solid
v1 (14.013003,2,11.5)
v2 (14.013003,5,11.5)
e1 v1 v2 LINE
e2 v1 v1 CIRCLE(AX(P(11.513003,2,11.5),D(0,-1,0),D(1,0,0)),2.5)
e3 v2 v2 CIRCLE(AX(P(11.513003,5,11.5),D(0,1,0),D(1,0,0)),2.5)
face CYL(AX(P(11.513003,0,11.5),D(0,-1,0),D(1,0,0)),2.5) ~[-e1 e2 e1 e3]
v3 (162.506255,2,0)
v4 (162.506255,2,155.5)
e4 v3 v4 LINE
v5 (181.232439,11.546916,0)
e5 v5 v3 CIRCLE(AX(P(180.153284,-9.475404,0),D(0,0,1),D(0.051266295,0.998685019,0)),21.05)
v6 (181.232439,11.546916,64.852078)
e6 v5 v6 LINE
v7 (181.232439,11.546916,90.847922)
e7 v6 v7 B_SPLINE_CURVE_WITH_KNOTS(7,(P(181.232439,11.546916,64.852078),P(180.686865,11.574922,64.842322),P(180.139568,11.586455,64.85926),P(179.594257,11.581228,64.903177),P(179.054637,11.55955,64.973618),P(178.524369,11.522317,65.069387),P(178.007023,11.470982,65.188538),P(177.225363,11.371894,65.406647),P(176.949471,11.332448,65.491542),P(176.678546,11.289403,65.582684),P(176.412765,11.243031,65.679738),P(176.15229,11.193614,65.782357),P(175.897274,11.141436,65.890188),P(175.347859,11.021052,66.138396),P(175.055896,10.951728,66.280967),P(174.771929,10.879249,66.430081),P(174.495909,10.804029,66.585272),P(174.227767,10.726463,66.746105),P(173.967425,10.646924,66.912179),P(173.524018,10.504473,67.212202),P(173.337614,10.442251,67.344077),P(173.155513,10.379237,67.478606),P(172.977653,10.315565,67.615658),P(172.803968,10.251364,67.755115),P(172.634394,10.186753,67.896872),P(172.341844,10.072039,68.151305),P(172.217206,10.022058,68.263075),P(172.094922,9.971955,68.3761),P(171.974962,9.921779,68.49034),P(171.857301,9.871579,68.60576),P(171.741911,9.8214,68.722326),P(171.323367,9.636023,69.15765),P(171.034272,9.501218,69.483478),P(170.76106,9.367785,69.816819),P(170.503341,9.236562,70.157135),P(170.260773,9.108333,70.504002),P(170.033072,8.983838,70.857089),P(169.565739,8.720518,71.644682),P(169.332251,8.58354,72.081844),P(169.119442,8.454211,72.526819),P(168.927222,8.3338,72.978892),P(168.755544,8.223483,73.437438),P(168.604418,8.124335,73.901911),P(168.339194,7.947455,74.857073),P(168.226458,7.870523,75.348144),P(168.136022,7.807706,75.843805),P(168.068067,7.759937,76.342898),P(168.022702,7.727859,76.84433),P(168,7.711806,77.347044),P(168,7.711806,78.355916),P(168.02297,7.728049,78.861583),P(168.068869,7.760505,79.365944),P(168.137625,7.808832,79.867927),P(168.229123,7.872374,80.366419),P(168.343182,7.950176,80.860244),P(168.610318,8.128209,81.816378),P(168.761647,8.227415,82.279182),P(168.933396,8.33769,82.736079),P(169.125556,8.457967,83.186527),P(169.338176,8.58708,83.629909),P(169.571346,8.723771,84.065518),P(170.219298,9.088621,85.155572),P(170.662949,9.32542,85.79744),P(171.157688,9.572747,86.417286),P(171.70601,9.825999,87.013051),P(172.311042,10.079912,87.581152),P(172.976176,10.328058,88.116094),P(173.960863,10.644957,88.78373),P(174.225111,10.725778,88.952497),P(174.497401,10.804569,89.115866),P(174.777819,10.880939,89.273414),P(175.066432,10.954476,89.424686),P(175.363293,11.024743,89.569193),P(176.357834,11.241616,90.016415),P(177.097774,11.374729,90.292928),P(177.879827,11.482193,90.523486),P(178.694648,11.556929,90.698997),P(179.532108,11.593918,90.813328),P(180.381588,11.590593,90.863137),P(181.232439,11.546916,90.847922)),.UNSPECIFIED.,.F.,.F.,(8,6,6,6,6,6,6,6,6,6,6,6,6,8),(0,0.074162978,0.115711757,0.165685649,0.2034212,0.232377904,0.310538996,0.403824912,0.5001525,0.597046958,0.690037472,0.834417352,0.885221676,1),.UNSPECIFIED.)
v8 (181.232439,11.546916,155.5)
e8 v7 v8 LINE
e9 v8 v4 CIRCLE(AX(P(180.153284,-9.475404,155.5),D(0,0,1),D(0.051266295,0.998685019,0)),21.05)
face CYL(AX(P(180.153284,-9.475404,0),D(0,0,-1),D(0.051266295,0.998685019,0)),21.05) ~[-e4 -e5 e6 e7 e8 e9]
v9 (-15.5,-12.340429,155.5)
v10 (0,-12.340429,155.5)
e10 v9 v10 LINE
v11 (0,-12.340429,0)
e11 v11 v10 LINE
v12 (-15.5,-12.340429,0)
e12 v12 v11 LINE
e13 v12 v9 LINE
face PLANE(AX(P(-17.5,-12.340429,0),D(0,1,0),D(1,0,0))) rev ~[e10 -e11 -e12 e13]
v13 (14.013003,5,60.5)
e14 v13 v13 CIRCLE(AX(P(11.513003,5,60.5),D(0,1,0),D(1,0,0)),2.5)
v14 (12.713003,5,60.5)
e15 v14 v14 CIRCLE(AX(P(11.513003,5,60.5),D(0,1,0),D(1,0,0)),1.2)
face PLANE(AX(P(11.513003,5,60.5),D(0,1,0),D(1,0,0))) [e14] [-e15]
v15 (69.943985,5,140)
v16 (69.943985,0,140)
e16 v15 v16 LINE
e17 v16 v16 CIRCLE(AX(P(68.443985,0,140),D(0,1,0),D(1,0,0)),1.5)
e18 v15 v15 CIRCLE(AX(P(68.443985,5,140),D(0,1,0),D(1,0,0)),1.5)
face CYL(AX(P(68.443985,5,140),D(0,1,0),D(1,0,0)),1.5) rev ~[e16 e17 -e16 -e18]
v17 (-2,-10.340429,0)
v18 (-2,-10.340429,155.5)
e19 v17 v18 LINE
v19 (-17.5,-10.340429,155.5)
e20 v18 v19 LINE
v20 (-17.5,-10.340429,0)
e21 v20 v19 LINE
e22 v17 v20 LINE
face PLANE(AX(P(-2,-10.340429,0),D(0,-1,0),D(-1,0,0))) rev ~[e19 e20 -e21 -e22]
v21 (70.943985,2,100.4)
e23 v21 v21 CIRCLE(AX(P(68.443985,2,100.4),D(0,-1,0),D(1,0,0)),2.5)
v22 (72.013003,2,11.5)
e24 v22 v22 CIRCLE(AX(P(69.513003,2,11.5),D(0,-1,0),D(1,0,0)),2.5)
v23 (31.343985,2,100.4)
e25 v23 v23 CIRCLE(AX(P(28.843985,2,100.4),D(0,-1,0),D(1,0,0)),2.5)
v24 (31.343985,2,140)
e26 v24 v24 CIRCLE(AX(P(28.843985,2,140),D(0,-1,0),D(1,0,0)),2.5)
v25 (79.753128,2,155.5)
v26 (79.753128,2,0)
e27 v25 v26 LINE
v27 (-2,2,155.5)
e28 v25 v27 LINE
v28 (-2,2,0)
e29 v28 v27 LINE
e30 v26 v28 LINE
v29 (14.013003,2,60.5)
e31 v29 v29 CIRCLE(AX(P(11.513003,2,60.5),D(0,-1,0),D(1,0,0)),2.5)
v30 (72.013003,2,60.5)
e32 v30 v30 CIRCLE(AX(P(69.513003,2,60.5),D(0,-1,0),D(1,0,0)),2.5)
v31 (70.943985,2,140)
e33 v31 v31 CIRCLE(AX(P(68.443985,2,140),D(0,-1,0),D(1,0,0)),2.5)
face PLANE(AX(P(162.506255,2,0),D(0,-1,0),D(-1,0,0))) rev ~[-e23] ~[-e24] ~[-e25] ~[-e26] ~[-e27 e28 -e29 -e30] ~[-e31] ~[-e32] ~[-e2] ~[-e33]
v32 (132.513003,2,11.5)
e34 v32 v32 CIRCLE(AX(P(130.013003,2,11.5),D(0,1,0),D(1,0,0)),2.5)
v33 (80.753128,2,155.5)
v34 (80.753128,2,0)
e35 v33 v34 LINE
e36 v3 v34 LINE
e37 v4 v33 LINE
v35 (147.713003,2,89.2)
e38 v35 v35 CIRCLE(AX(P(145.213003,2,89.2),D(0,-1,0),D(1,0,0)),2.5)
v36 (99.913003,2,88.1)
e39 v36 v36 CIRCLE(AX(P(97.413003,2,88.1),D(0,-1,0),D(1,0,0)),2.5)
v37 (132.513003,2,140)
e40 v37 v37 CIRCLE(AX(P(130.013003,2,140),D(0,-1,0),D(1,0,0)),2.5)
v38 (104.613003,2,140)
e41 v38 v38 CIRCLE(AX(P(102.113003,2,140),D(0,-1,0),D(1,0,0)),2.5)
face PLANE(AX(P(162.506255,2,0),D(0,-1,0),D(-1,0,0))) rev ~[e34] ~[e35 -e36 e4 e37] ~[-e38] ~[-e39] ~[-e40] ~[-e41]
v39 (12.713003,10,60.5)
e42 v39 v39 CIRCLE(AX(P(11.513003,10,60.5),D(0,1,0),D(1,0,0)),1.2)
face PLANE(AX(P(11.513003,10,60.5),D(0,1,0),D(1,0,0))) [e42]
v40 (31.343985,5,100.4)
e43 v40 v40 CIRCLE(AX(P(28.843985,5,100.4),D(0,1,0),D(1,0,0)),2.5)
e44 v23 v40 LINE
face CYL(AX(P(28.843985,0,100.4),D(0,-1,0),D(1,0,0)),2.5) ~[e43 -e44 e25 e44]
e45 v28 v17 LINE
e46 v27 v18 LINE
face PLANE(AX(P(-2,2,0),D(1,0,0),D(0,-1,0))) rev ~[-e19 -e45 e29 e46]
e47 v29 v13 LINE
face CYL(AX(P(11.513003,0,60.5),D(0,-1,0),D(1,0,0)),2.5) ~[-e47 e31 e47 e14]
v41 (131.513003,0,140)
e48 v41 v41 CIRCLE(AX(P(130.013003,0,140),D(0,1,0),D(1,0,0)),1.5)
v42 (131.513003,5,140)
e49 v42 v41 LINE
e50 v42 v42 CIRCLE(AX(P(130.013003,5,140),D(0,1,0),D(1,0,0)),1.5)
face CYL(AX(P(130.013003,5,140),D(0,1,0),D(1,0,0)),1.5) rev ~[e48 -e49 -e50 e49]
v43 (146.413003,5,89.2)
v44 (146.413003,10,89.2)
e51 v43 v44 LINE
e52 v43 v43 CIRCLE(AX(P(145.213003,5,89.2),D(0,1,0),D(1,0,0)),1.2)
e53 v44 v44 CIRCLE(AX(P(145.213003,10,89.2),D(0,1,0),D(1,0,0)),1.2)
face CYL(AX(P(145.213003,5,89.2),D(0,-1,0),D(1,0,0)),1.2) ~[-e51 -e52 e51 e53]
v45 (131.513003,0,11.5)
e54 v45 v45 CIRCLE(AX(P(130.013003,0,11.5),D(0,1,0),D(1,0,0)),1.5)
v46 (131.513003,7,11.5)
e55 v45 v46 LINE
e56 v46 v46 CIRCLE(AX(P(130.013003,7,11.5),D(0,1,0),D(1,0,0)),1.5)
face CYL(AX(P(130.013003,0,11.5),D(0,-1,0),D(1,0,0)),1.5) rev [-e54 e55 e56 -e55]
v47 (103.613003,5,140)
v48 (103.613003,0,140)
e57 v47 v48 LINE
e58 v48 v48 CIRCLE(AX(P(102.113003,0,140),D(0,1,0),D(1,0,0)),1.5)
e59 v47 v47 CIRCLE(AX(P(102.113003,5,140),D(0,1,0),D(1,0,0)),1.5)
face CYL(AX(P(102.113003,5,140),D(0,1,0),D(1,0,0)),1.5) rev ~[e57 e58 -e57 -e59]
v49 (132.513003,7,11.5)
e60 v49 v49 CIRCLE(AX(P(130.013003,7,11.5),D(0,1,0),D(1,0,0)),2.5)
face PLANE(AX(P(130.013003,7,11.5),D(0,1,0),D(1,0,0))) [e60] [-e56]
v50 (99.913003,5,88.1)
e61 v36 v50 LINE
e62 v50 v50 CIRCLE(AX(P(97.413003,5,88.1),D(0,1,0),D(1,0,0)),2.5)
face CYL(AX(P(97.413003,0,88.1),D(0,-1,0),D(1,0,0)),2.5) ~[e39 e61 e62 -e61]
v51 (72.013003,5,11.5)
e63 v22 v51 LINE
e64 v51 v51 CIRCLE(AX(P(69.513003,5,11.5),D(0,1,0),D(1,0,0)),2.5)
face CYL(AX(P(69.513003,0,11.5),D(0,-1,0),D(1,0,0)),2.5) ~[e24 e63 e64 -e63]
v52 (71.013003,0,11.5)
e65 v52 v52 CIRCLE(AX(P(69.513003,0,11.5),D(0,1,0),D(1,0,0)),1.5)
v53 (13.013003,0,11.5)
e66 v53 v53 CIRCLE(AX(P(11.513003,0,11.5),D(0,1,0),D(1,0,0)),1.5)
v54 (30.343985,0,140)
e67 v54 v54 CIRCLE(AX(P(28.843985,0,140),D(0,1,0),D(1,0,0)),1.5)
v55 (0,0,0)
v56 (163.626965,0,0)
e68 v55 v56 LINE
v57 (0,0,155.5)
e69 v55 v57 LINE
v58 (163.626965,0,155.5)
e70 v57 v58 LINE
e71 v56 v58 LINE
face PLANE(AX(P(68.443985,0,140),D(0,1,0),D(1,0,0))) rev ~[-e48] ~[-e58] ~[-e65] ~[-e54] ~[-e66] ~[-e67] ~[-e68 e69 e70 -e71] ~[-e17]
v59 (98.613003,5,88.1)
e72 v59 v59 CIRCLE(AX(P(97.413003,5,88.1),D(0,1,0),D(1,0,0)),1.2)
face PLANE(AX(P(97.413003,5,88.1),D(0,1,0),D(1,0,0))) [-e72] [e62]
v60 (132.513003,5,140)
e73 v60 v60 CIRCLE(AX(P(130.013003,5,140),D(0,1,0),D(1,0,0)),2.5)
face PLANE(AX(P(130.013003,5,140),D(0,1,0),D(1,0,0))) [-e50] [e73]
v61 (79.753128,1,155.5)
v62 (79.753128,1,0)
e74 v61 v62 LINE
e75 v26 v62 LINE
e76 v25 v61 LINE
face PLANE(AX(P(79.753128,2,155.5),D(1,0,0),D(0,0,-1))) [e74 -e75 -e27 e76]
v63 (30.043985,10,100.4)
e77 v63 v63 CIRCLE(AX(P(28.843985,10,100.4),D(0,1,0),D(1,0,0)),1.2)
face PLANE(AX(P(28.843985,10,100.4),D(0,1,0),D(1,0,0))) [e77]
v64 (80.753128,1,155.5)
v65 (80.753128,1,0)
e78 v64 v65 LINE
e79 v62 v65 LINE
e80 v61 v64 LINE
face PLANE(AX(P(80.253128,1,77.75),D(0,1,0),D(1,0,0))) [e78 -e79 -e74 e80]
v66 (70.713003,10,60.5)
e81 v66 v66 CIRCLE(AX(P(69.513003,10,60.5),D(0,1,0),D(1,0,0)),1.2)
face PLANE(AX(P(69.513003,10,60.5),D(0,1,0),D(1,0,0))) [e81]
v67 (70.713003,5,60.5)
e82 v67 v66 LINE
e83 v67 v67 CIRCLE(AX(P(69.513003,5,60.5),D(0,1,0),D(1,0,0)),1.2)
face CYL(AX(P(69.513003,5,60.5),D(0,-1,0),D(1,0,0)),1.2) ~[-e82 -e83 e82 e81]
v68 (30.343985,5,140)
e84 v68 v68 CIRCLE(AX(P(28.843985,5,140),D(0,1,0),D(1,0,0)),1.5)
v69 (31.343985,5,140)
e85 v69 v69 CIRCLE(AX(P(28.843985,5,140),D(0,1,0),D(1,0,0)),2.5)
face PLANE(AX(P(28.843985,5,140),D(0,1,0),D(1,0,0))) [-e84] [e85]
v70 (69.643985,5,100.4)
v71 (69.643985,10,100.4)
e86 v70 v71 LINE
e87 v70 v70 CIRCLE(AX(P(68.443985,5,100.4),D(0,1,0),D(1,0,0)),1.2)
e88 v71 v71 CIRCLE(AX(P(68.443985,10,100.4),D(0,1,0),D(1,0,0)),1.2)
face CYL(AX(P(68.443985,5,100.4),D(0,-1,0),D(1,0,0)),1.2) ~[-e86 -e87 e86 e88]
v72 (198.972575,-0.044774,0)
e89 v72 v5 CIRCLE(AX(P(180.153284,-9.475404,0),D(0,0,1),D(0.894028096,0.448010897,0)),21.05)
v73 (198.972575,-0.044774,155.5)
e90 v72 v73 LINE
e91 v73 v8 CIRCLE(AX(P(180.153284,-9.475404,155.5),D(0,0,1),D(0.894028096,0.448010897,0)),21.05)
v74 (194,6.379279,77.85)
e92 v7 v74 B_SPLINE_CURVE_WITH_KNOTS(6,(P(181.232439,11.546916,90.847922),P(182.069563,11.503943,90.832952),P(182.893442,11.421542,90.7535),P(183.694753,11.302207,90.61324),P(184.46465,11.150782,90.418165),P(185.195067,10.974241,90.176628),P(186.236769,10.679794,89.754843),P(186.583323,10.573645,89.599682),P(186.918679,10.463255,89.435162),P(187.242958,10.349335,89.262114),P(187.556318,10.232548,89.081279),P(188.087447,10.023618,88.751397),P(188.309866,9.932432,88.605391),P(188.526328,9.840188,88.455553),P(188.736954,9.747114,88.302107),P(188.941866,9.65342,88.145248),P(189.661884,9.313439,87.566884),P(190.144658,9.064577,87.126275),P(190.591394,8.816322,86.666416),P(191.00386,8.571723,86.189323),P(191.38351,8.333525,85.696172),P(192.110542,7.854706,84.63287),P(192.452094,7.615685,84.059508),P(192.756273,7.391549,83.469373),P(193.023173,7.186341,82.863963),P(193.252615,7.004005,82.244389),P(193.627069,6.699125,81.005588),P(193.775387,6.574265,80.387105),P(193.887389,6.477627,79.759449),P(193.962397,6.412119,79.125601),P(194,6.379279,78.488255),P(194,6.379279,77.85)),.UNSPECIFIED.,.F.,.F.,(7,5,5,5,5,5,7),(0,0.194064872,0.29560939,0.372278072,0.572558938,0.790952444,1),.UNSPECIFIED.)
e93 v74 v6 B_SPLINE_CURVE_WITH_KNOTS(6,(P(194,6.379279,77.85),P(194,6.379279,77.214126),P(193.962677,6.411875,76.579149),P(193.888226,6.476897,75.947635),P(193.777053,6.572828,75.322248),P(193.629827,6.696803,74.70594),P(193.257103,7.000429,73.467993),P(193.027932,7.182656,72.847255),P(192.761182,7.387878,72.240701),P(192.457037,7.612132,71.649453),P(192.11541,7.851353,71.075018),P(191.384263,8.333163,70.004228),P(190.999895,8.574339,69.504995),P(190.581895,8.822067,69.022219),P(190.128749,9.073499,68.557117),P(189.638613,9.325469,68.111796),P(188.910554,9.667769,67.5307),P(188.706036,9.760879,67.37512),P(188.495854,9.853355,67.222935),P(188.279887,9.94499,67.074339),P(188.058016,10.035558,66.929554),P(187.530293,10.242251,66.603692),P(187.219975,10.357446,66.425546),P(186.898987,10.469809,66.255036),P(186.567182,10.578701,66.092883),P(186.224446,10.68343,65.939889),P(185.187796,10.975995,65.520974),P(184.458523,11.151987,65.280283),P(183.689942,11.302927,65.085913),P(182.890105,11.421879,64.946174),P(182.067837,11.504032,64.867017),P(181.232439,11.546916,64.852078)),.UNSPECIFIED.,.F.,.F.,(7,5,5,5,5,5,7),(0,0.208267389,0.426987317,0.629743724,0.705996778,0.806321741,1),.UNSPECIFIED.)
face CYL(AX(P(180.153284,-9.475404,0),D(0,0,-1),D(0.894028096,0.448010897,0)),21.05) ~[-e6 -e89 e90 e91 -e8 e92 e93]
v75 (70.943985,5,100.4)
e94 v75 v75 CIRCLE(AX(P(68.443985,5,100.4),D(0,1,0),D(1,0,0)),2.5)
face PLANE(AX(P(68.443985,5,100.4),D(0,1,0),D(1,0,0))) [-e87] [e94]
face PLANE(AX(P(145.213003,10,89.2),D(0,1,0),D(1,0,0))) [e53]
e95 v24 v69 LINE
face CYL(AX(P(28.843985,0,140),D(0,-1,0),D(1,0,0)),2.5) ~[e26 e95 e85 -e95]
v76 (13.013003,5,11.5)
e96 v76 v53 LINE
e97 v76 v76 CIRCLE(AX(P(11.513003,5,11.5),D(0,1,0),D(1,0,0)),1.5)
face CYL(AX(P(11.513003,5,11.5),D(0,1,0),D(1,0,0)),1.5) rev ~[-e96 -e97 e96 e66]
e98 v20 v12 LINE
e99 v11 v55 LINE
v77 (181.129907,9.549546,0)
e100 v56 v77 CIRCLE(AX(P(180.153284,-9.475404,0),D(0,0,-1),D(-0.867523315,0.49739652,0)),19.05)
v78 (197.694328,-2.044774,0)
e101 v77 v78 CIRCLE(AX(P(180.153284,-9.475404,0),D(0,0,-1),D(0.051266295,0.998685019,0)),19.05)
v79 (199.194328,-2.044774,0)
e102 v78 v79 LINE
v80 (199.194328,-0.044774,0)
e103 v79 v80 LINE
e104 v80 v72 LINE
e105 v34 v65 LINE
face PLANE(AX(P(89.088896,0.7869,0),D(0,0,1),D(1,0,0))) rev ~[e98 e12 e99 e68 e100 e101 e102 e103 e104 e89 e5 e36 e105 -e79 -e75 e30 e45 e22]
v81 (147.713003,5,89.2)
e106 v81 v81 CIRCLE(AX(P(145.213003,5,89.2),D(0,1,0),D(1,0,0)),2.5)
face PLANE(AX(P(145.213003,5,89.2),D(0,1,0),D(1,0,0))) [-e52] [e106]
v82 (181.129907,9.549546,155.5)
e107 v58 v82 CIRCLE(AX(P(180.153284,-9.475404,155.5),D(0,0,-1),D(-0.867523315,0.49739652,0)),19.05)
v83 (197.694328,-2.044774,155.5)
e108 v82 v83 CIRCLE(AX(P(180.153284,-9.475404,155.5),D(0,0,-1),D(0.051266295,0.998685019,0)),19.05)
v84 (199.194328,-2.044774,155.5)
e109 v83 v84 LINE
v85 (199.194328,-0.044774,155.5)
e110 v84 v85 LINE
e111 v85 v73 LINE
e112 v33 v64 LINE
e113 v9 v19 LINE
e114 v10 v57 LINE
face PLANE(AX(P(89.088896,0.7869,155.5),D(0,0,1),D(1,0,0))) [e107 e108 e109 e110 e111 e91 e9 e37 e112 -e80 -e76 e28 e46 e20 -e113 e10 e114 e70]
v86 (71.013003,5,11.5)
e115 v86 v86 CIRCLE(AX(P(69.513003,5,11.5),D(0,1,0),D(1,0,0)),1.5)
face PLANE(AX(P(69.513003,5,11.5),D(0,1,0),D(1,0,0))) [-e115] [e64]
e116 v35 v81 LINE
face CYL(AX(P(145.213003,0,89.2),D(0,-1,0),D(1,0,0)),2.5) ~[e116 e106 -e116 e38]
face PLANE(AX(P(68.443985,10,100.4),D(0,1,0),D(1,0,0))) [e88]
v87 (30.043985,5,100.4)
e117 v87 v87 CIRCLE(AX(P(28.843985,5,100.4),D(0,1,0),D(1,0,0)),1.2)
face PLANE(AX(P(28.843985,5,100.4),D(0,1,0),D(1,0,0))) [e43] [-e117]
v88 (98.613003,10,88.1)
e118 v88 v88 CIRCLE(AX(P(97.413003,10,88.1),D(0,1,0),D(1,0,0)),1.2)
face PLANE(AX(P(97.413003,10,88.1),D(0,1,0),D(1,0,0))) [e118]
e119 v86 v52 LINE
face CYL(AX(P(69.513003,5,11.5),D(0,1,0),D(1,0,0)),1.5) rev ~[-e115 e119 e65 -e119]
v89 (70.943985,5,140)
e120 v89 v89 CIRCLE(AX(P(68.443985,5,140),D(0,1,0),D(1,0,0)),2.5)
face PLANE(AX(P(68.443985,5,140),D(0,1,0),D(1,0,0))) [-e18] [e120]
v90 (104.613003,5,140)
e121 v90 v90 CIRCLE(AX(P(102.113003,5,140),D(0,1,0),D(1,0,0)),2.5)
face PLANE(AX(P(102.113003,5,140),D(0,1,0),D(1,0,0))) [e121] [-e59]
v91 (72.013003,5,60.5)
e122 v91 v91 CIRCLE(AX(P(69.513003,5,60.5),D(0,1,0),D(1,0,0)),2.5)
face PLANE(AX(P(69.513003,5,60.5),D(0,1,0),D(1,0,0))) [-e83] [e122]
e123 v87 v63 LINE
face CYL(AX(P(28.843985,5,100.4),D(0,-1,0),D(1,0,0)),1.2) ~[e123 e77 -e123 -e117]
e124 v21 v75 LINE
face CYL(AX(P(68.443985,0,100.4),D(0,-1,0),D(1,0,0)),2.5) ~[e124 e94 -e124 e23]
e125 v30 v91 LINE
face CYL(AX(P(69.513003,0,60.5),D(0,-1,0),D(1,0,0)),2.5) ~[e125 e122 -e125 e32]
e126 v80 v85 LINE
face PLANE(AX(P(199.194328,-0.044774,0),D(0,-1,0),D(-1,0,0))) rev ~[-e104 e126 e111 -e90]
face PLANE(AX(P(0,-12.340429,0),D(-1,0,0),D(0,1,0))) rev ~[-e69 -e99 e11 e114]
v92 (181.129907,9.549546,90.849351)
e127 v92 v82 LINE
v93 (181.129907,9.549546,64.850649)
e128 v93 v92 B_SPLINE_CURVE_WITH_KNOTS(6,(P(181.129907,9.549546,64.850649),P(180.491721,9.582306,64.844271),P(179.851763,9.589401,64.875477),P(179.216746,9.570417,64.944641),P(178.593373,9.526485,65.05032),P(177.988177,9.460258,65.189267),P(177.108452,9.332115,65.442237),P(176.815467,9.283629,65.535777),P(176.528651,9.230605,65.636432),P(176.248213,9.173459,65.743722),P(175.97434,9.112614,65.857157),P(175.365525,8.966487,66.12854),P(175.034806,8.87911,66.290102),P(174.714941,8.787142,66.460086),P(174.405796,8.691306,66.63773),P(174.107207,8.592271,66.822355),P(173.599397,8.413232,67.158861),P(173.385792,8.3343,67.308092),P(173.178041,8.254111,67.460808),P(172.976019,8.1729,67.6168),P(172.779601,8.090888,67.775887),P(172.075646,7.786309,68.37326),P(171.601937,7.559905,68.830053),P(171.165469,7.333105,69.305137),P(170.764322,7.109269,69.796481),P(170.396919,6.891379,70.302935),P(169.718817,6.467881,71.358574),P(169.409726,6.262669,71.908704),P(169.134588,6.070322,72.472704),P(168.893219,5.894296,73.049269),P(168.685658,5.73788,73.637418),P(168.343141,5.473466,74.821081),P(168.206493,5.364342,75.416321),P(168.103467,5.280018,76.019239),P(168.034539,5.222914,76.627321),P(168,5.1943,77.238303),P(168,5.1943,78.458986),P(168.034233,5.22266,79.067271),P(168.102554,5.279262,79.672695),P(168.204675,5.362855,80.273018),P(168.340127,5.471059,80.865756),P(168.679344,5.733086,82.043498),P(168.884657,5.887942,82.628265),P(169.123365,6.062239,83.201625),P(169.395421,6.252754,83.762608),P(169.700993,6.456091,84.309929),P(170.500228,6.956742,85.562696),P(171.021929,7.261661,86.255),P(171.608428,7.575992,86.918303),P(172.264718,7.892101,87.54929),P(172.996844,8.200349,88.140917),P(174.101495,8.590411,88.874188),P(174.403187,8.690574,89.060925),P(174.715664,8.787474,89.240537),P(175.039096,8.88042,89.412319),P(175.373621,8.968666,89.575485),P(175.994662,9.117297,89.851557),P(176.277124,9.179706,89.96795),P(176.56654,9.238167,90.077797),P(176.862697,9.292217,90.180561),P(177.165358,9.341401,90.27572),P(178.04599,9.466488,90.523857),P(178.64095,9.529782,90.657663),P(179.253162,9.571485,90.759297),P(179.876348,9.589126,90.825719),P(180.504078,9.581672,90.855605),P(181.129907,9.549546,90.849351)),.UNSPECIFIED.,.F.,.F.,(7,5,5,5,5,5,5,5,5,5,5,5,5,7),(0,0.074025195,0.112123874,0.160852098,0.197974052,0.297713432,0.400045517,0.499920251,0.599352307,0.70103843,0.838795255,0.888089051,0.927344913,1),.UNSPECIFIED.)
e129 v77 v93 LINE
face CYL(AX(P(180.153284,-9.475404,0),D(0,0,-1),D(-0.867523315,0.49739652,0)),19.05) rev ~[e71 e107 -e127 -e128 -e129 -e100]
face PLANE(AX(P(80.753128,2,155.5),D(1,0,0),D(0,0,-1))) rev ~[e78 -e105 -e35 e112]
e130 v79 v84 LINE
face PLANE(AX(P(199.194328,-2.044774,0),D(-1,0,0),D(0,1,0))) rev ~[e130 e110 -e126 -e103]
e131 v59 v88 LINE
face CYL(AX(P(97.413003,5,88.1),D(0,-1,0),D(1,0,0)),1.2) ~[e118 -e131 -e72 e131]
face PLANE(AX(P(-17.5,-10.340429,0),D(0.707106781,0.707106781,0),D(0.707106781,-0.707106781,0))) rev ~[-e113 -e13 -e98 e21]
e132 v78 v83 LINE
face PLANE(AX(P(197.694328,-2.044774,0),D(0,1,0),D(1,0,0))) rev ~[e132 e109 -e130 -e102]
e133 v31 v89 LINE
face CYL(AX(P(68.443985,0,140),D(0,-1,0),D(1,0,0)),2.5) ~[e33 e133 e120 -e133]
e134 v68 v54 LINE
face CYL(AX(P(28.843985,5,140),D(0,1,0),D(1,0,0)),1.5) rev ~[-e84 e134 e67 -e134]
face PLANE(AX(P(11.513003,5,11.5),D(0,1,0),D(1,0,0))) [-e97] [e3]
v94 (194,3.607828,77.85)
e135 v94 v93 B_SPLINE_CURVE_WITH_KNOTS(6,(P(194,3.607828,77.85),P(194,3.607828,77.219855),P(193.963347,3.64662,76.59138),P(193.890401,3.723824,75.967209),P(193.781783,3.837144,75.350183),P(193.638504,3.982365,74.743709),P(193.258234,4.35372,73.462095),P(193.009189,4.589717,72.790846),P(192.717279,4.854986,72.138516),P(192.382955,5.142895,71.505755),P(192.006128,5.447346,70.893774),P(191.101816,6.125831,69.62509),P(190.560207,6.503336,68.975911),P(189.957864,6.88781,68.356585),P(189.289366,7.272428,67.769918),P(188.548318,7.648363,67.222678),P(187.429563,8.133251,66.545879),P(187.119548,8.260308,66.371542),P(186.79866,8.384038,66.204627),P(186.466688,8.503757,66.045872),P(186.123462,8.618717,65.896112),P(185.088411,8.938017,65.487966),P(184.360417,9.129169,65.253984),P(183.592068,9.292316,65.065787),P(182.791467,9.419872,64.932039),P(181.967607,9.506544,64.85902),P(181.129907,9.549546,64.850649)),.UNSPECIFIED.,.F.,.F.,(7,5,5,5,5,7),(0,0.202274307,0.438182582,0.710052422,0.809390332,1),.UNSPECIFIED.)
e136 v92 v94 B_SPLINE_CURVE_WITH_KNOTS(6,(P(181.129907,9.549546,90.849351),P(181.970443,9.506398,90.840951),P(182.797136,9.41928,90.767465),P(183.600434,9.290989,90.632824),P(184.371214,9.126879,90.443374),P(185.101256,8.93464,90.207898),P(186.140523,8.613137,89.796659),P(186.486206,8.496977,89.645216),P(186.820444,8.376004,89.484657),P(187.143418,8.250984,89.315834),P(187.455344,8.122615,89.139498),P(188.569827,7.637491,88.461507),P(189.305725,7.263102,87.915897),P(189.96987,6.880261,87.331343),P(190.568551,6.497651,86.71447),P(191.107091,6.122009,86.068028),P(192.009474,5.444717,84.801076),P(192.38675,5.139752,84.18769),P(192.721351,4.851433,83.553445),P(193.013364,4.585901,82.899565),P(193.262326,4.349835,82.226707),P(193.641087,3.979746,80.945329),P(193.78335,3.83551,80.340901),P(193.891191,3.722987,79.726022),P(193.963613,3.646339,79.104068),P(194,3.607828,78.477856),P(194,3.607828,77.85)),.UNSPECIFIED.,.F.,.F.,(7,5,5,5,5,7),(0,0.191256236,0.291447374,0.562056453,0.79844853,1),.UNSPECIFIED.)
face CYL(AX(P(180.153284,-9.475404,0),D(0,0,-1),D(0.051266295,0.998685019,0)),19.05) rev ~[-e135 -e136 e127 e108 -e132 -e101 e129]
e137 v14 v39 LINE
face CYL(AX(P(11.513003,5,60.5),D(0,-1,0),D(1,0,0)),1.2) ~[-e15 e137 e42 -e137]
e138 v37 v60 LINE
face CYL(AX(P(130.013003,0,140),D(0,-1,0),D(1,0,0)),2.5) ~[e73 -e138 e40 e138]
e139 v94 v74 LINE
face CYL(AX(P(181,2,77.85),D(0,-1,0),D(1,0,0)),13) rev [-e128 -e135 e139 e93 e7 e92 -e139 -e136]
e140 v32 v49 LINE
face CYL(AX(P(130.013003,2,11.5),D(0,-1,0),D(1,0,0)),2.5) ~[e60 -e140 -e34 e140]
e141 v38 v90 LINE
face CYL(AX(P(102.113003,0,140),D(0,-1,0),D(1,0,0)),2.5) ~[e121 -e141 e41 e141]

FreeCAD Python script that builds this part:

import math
import FreeCAD as App
import Part
import Sketcher

V = App.Vector


def add_polygon(sketch, points):
    """Adds a closed chain of lines whose ends are joined by coincident constraints."""
    first, n = sketch.GeometryCount, len(points)
    for a, b in zip(points, points[1:] + points[:1]):
        sketch.addGeometry(Part.LineSegment(App.Vector(*a, 0), App.Vector(*b, 0)), False)
    for i in range(n):
        sketch.addConstraint(Sketcher.Constraint("Coincident", first + i, 2, first + (i + 1) % n, 1))

doc = App.newDocument("Part")
params = doc.addObject("Spreadsheet::Sheet", "Params")
for row, (alias, value) in enumerate([
    ("sketch1_height", "2 mm"),
    ("sketch1_radius", "19.05 mm"),
    ("sketch1_radius2", "21.05 mm"),
    ("sketch1_width", "17.5 mm"),
    ("sketch1_width2", "1.5 mm"),
    ("pad1_length", "155.5 mm"),
    ("sketch2_diameter", "5 mm"),
    ("pad2_length", "5 mm"),
    ("sketch3_diameter", "3 mm"),
    ("pocket1_length", "8 mm"),
    ("sketch4_diameter", "3 mm"),
    ("pocket2_length", "8 mm"),
    ("sketch5_diameter", "5 mm"),
    ("pad3_length", "5 mm"),
    ("sketch6_diameter", "3 mm"),
    ("pocket3_length", "8 mm"),
    ("sketch7_diameter", "3 mm"),
    ("pocket4_length", "8 mm"),
    ("sketch8_diameter", "5 mm"),
    ("pad4_length", "5 mm"),
    ("sketch9_diameter", "3 mm"),
    ("pocket5_length", "8 mm"),
    ("sketch10_diameter", "3 mm"),
    ("pocket6_length", "8 mm"),
    ("sketch11_diameter", "2.4 mm"),
    ("pad5_length", "5 mm"),
    ("sketch12_diameter", "2.4 mm"),
    ("pad6_length", "5 mm"),
    ("sketch13_diameter", "2.4 mm"),
    ("pad7_length", "5 mm"),
    ("sketch14_diameter", "2.4 mm"),
    ("pad8_length", "5 mm"),
    ("sketch15_diameter", "2.4 mm"),
    ("pad9_length", "5 mm"),
    ("sketch16_diameter", "2.4 mm"),
    ("pad10_length", "5 mm"),
    ("sketch17_width", "2 mm"),
    ("sketch18_diameter", "26 mm"),
    ("pocket8_length", "13 mm"),
    ("sketch19_width", "1 mm"),
    ("sketch19_height", "155.5 mm"),
    ("pocket9_length", "1 mm"),
    ("sketch20_diameter", "5 mm"),
    ("sketch20_diameter2", "3 mm"),
    ("pad11_length", "5 mm"),
    ("sketch21_diameter", "3 mm"),
    ("pocket10_length", "2 mm"),
], start=1):
    params.set(f"A{row}", alias)
    params.set(f"B{row}", "=" + value)
    params.setAlias(f"B{row}", alias)

body = doc.addObject("PartDesign::Body", "Body")

# Sketch on XY plane
sketch1 = doc.addObject("Sketcher::SketchObject", "Sketch")
body.addObject(sketch1)
sketch1.AttachmentSupport = (doc.XY_Plane, [""])
sketch1.MapMode = "FlatFace"
sketch1.addGeometry([
    Part.LineSegment(V(-17.5, -12.34, 0), V(0, -12.34, 0)),  # 0
    Part.LineSegment(V(0, -12.34, 0), V(0, 0, 0)),  # 1
    Part.LineSegment(V(0, 0, 0), V(163.63, 0, 0)),  # 2
    Part.ArcOfCircle(Part.Circle(V(180.15, -9.48, 0), V(0, 0, 1), 19.05), math.radians(87), math.radians(150)),  # 3
    Part.ArcOfCircle(Part.Circle(V(180.15, -9.48, 0), V(0, 0, 1), 19.05), math.radians(23), math.radians(87)),  # 4
    Part.LineSegment(V(197.69, -2.04, 0), V(199.19, -2.04, 0)),  # 5
    Part.LineSegment(V(199.19, -2.04, 0), V(199.19, -0.04, 0)),  # 6
    Part.LineSegment(V(199.19, -0.04, 0), V(198.97, -0.04, 0)),  # 7
    Part.ArcOfCircle(Part.Circle(V(180.15, -9.48, 0), V(0, 0, 1), 21.05), math.radians(27), math.radians(87)),  # 8
    Part.ArcOfCircle(Part.Circle(V(180.15, -9.48, 0), V(0, 0, 1), 21.05), math.radians(87), math.radians(147)),  # 9
    Part.LineSegment(V(162.51, 2, 0), V(-2, 2, 0)),  # 10
    Part.LineSegment(V(-2, 2, 0), V(-2, -10.34, 0)),  # 11
    Part.LineSegment(V(-2, -10.34, 0), V(-17.5, -10.34, 0)),  # 12
    Part.LineSegment(V(-17.5, -10.34, 0), V(-17.5, -12.34, 0)),  # 13
], False)
sketch1.addConstraint([
    Sketcher.Constraint("Coincident", 0, 2, 1, 1),
    Sketcher.Constraint("Coincident", 1, 2, 2, 1),
    Sketcher.Constraint("Coincident", 2, 2, 3, 2),
    Sketcher.Constraint("Tangent", 3, 1, 4, 2),
    Sketcher.Constraint("Coincident", 4, 1, 5, 1),
    Sketcher.Constraint("Coincident", 5, 2, 6, 1),
    Sketcher.Constraint("Coincident", 6, 2, 7, 1),
    Sketcher.Constraint("Coincident", 7, 2, 8, 1),
    Sketcher.Constraint("Tangent", 8, 2, 9, 1),
    Sketcher.Constraint("Coincident", 9, 2, 10, 1),
    Sketcher.Constraint("Coincident", 10, 2, 11, 1),
    Sketcher.Constraint("Coincident", 11, 2, 12, 1),
    Sketcher.Constraint("Coincident", 12, 2, 13, 1),
    Sketcher.Constraint("Coincident", 13, 2, 0, 1),
    Sketcher.Constraint("Horizontal", 0),
    Sketcher.Constraint("Vertical", 1),
    Sketcher.Constraint("Horizontal", 2),
    Sketcher.Constraint("Horizontal", 5),
    Sketcher.Constraint("Vertical", 6),
    Sketcher.Constraint("Horizontal", 7),
    Sketcher.Constraint("Horizontal", 10),
    Sketcher.Constraint("Vertical", 11),
    Sketcher.Constraint("Horizontal", 12),
    Sketcher.Constraint("Vertical", 13),
    Sketcher.Constraint("Coincident", 1, 2, -1, 1),
    Sketcher.Constraint("Coincident", 8, 3, 3, 3),
    Sketcher.Constraint("Equal", 3, 4),
    Sketcher.Constraint("Equal", 8, 9),
    Sketcher.Constraint("Equal", 1, 11),
    Sketcher.Constraint("Equal", 6, 13),
    Sketcher.Constraint("DistanceY", 6, 1, 6, 2, 2.0),
    Sketcher.Constraint("Radius", 3, 19.05),
    Sketcher.Constraint("Radius", 8, 21.05),
    Sketcher.Constraint("DistanceX", 0, 1, 0, 2, 17.5),
    Sketcher.Constraint("DistanceX", 5, 1, 5, 2, 1.5),
    Sketcher.Constraint("DistanceX", 12, 2, 12, 1, 15.5),
    Sketcher.Constraint("DistanceY", 1, 1, 1, 2, 12.340429),
    Sketcher.Constraint("DistanceX", 2, 1, 2, 2, 163.626965),
    Sketcher.Constraint("DistanceX", 7, 2, 7, 1, 0.221753),
    Sketcher.Constraint("DistanceX", 10, 2, 10, 1, 164.506255),
    Sketcher.Constraint("DistanceX", -1, 1, 8, 2, 181.232439),
    Sketcher.Constraint("DistanceY", 8, 3, 3, 1, 19.02495),
])
sketch1.setExpression("Constraints[30]", "Params.sketch1_height")
sketch1.setExpression("Constraints[31]", "Params.sketch1_radius")
sketch1.setExpression("Constraints[32]", "Params.sketch1_radius2")
sketch1.setExpression("Constraints[33]", "Params.sketch1_width")
sketch1.setExpression("Constraints[34]", "Params.sketch1_width2")
pad1 = doc.addObject("PartDesign::Pad", "Pad")
body.addObject(pad1)
pad1.Profile = sketch1
pad1.setExpression("Length", "Params.pad1_length")

# Sketch on XZ plane
sketch2 = doc.addObject("Sketcher::SketchObject", "Sketch001")
body.addObject(sketch2)
sketch2.AttachmentSupport = (doc.XZ_Plane, [""])
sketch2.MapMode = "FlatFace"
sketch2.addGeometry([
    Part.Circle(V(11.5, 11.5, 0), V(0, 0, 1), 2.5),
    Part.Circle(V(69.5, 11.5, 0), V(0, 0, 1), 2.5),
    Part.Circle(V(11.5, 60.5, 0), V(0, 0, 1), 2.5),
    Part.Circle(V(69.5, 60.5, 0), V(0, 0, 1), 2.5),
], False)
sketch2.addConstraint([
    Sketcher.Constraint("Equal", 0, 1),
    Sketcher.Constraint("Equal", 1, 2),
    Sketcher.Constraint("Equal", 2, 3),
    Sketcher.Constraint("Horizontal", 0, 3, 1, 3),
    Sketcher.Constraint("Horizontal", 2, 3, 3, 3),
    Sketcher.Constraint("Vertical", 0, 3, 2, 3),
    Sketcher.Constraint("Vertical", 1, 3, 3, 3),
    Sketcher.Constraint("Diameter", 0, 5.0),
    Sketcher.Constraint("DistanceX", 0, 3, 1, 3, 58.0),
    Sketcher.Constraint("DistanceY", 0, 3, 2, 3, 49.0),
    Sketcher.Constraint("DistanceY", -1, 1, 0, 3, 11.5),
    Sketcher.Constraint("DistanceX", -1, 1, 0, 3, 11.513003),
])
sketch2.setExpression("Constraints[7]", "Params.sketch2_diameter")
pad2 = doc.addObject("PartDesign::Pad", "Pad001")
body.addObject(pad2)
pad2.Profile = sketch2
pad2.setExpression("Length", "Params.pad2_length")
pad2.Reversed = True

# Sketch on XZ plane
sketch3 = doc.addObject("Sketcher::SketchObject", "Sketch002")
body.addObject(sketch3)
sketch3.AttachmentSupport = (doc.XZ_Plane, [""])
sketch3.MapMode = "FlatFace"
sketch3.AttachmentOffset = App.Placement(V(0, 0, -5), App.Rotation())
sketch3.addGeometry(Part.Circle(V(11.5, 11.5, 0), V(0, 0, 1), 1.5), False)
sketch3.addConstraint([
    Sketcher.Constraint("Diameter", 0, 3.0),
    Sketcher.Constraint("DistanceY", -1, 1, 0, 3, 11.5),
    Sketcher.Constraint("DistanceX", -1, 1, 0, 3, 11.513003),
])
sketch3.setExpression("Constraints[0]", "Params.sketch3_diameter")
pocket1 = doc.addObject("PartDesign::Pocket", "Pocket")
body.addObject(pocket1)
pocket1.Profile = sketch3
pocket1.setExpression("Length", "Params.pocket1_length")
pocket1.Reversed = True

# Sketch on XZ plane
sketch4 = doc.addObject("Sketcher::SketchObject", "Sketch003")
body.addObject(sketch4)
sketch4.AttachmentSupport = (doc.XZ_Plane, [""])
sketch4.MapMode = "FlatFace"
sketch4.AttachmentOffset = App.Placement(V(0, 0, -5), App.Rotation())
sketch4.addGeometry(Part.Circle(V(69.5, 11.5, 0), V(0, 0, 1), 1.5), False)
sketch4.addConstraint([
    Sketcher.Constraint("Diameter", 0, 3.0),
    Sketcher.Constraint("DistanceY", -1, 1, 0, 3, 11.5),
    Sketcher.Constraint("DistanceX", -1, 1, 0, 3, 69.513003),
])
sketch4.setExpression("Constraints[0]", "Params.sketch4_diameter")
pocket2 = doc.addObject("PartDesign::Pocket", "Pocket001")
body.addObject(pocket2)
pocket2.Profile = sketch4
pocket2.setExpression("Length", "Params.pocket2_length")
pocket2.Reversed = True

# Sketch on XZ plane
sketch5 = doc.addObject("Sketcher::SketchObject", "Sketch004")
body.addObject(sketch5)
sketch5.AttachmentSupport = (doc.XZ_Plane, [""])
sketch5.MapMode = "FlatFace"
sketch5.addGeometry([
    Part.Circle(V(130, 140, 0), V(0, 0, 1), 2.5),
    Part.Circle(V(102.1, 140, 0), V(0, 0, 1), 2.5),
    Part.Circle(V(145.2, 89.2, 0), V(0, 0, 1), 2.5),
    Part.Circle(V(97.4, 88.1, 0), V(0, 0, 1), 2.5),
], False)
sketch5.addConstraint([
    Sketcher.Constraint("Equal", 0, 1),
    Sketcher.Constraint("Equal", 1, 2),
    Sketcher.Constraint("Equal", 2, 3),
    Sketcher.Constraint("Horizontal", 0, 3, 1, 3),
    Sketcher.Constraint("Diameter", 0, 5.0),
    Sketcher.Constraint("DistanceY", -1, 1, 0, 3, 140.0),
    Sketcher.Constraint("DistanceY", -1, 1, 2, 3, 89.2),
    Sketcher.Constraint("DistanceY", -1, 1, 3, 3, 88.1),
    Sketcher.Constraint("DistanceX", 1, 3, 0, 3, 27.9),
    Sketcher.Constraint("DistanceX", 0, 3, 2, 3, 15.2),
    Sketcher.Constraint("DistanceX", 3, 3, 2, 3, 47.8),
    Sketcher.Constraint("DistanceX", -1, 1, 0, 3, 130.013003),
])
sketch5.setExpression("Constraints[4]", "Params.sketch5_diameter")
pad3 = doc.addObject("PartDesign::Pad", "Pad002")
body.addObject(pad3)
pad3.Profile = sketch5
pad3.setExpression("Length", "Params.pad3_length")
pad3.Reversed = True

# Sketch on XZ plane
sketch6 = doc.addObject("Sketcher::SketchObject", "Sketch005")
body.addObject(sketch6)
sketch6.AttachmentSupport = (doc.XZ_Plane, [""])
sketch6.MapMode = "FlatFace"
sketch6.AttachmentOffset = App.Placement(V(0, 0, -5), App.Rotation())
sketch6.addGeometry(Part.Circle(V(102.1, 140, 0), V(0, 0, 1), 1.5), False)
sketch6.addConstraint([
    Sketcher.Constraint("Diameter", 0, 3.0),
    Sketcher.Constraint("DistanceY", -1, 1, 0, 3, 140.0),
    Sketcher.Constraint("DistanceX", -1, 1, 0, 3, 102.113003),
])
sketch6.setExpression("Constraints[0]", "Params.sketch6_diameter")
pocket3 = doc.addObject("PartDesign::Pocket", "Pocket002")
body.addObject(pocket3)
pocket3.Profile = sketch6
pocket3.setExpression("Length", "Params.pocket3_length")
pocket3.Reversed = True

# Sketch on XZ plane
sketch7 = doc.addObject("Sketcher::SketchObject", "Sketch006")
body.addObject(sketch7)
sketch7.AttachmentSupport = (doc.XZ_Plane, [""])
sketch7.MapMode = "FlatFace"
sketch7.AttachmentOffset = App.Placement(V(0, 0, -5), App.Rotation())
sketch7.addGeometry(Part.Circle(V(130, 140, 0), V(0, 0, 1), 1.5), False)
sketch7.addConstraint([
    Sketcher.Constraint("Diameter", 0, 3.0),
    Sketcher.Constraint("DistanceY", -1, 1, 0, 3, 140.0),
    Sketcher.Constraint("DistanceX", -1, 1, 0, 3, 130.013003),
])
sketch7.setExpression("Constraints[0]", "Params.sketch7_diameter")
pocket4 = doc.addObject("PartDesign::Pocket", "Pocket003")
body.addObject(pocket4)
pocket4.Profile = sketch7
pocket4.setExpression("Length", "Params.pocket4_length")
pocket4.Reversed = True

# Sketch on XZ plane
sketch8 = doc.addObject("Sketcher::SketchObject", "Sketch007")
body.addObject(sketch8)
sketch8.AttachmentSupport = (doc.XZ_Plane, [""])
sketch8.MapMode = "FlatFace"
sketch8.addGeometry([
    Part.Circle(V(68.4, 140, 0), V(0, 0, 1), 2.5),
    Part.Circle(V(28.8, 140, 0), V(0, 0, 1), 2.5),
    Part.Circle(V(28.8, 100.4, 0), V(0, 0, 1), 2.5),
    Part.Circle(V(68.4, 100.4, 0), V(0, 0, 1), 2.5),
], False)
sketch8.addConstraint([
    Sketcher.Constraint("Equal", 0, 1),
    Sketcher.Constraint("Equal", 1, 2),
    Sketcher.Constraint("Equal", 2, 3),
    Sketcher.Constraint("Horizontal", 0, 3, 1, 3),
    Sketcher.Constraint("Horizontal", 2, 3, 3, 3),
    Sketcher.Constraint("Vertical", 1, 3, 2, 3),
    Sketcher.Constraint("Vertical", 0, 3, 3, 3),
    Sketcher.Constraint("Diameter", 0, 5.0),
    Sketcher.Constraint("DistanceY", -1, 1, 0, 3, 140.0),
    Sketcher.Constraint("DistanceY", -1, 1, 2, 3, 100.4),
    Sketcher.Constraint("DistanceX", 1, 3, 0, 3, 39.6),
    Sketcher.Constraint("DistanceX", -1, 1, 0, 3, 68.443985),
])
sketch8.setExpression("Constraints[7]", "Params.sketch8_diameter")
pad4 = doc.addObject("PartDesign::Pad", "Pad003")
body.addObject(pad4)
pad4.Profile = sketch8
pad4.setExpression("Length", "Params.pad4_length")
pad4.Reversed = True

# Sketch on XZ plane
sketch9 = doc.addObject("Sketcher::SketchObject", "Sketch008")
body.addObject(sketch9)
sketch9.AttachmentSupport = (doc.XZ_Plane, [""])
sketch9.MapMode = "FlatFace"
sketch9.AttachmentOffset = App.Placement(V(0, 0, -5), App.Rotation())
sketch9.addGeometry(Part.Circle(V(28.8, 140, 0), V(0, 0, 1), 1.5), False)
sketch9.addConstraint([
    Sketcher.Constraint("Diameter", 0, 3.0),
    Sketcher.Constraint("DistanceY", -1, 1, 0, 3, 140.0),
    Sketcher.Constraint("DistanceX", -1, 1, 0, 3, 28.843985),
])
sketch9.setExpression("Constraints[0]", "Params.sketch9_diameter")
pocket5 = doc.addObject("PartDesign::Pocket", "Pocket004")
body.addObject(pocket5)
pocket5.Profile = sketch9
pocket5.setExpression("Length", "Params.pocket5_length")
pocket5.Reversed = True

# Sketch on XZ plane
sketch10 = doc.addObject("Sketcher::SketchObject", "Sketch009")
body.addObject(sketch10)
sketch10.AttachmentSupport = (doc.XZ_Plane, [""])
sketch10.MapMode = "FlatFace"
sketch10.AttachmentOffset = App.Placement(V(0, 0, -5), App.Rotation())
sketch10.addGeometry(Part.Circle(V(68.4, 140, 0), V(0, 0, 1), 1.5), False)
sketch10.addConstraint([
    Sketcher.Constraint("Diameter", 0, 3.0),
    Sketcher.Constraint("DistanceY", -1, 1, 0, 3, 140.0),
    Sketcher.Constraint("DistanceX", -1, 1, 0, 3, 68.443985),
])
sketch10.setExpression("Constraints[0]", "Params.sketch10_diameter")
pocket6 = doc.addObject("PartDesign::Pocket", "Pocket005")
body.addObject(pocket6)
pocket6.Profile = sketch10
pocket6.setExpression("Length", "Params.pocket6_length")
pocket6.Reversed = True

# Sketch on XZ plane
sketch11 = doc.addObject("Sketcher::SketchObject", "Sketch010")
body.addObject(sketch11)
sketch11.AttachmentSupport = (doc.XZ_Plane, [""])
sketch11.MapMode = "FlatFace"
sketch11.AttachmentOffset = App.Placement(V(0, 0, -5), App.Rotation())
sketch11.addGeometry(Part.Circle(V(28.8, 100.4, 0), V(0, 0, 1), 1.2), False)
sketch11.addConstraint([
    Sketcher.Constraint("Diameter", 0, 2.4),
    Sketcher.Constraint("DistanceY", -1, 1, 0, 3, 100.4),
    Sketcher.Constraint("DistanceX", -1, 1, 0, 3, 28.843985),
])
sketch11.setExpression("Constraints[0]", "Params.sketch11_diameter")
pad5 = doc.addObject("PartDesign::Pad", "Pad004")
body.addObject(pad5)
pad5.Profile = sketch11
pad5.setExpression("Length", "Params.pad5_length")
pad5.Reversed = True

# Sketch on XZ plane
sketch12 = doc.addObject("Sketcher::SketchObject", "Sketch011")
body.addObject(sketch12)
sketch12.AttachmentSupport = (doc.XZ_Plane, [""])
sketch12.MapMode = "FlatFace"
sketch12.AttachmentOffset = App.Placement(V(0, 0, -5), App.Rotation())
sketch12.addGeometry(Part.Circle(V(68.4, 100.4, 0), V(0, 0, 1), 1.2), False)
sketch12.addConstraint([
    Sketcher.Constraint("Diameter", 0, 2.4),
    Sketcher.Constraint("DistanceY", -1, 1, 0, 3, 100.4),
    Sketcher.Constraint("DistanceX", -1, 1, 0, 3, 68.443985),
])
sketch12.setExpression("Constraints[0]", "Params.sketch12_diameter")
pad6 = doc.addObject("PartDesign::Pad", "Pad005")
body.addObject(pad6)
pad6.Profile = sketch12
pad6.setExpression("Length", "Params.pad6_length")
pad6.Reversed = True

# Sketch on XZ plane
sketch13 = doc.addObject("Sketcher::SketchObject", "Sketch012")
body.addObject(sketch13)
sketch13.AttachmentSupport = (doc.XZ_Plane, [""])
sketch13.MapMode = "FlatFace"
sketch13.AttachmentOffset = App.Placement(V(0, 0, -5), App.Rotation())
sketch13.addGeometry(Part.Circle(V(97.4, 88.1, 0), V(0, 0, 1), 1.2), False)
sketch13.addConstraint([
    Sketcher.Constraint("Diameter", 0, 2.4),
    Sketcher.Constraint("DistanceY", -1, 1, 0, 3, 88.1),
    Sketcher.Constraint("DistanceX", -1, 1, 0, 3, 97.413003),
])
sketch13.setExpression("Constraints[0]", "Params.sketch13_diameter")
pad7 = doc.addObject("PartDesign::Pad", "Pad006")
body.addObject(pad7)
pad7.Profile = sketch13
pad7.setExpression("Length", "Params.pad7_length")
pad7.Reversed = True

# Sketch on XZ plane
sketch14 = doc.addObject("Sketcher::SketchObject", "Sketch013")
body.addObject(sketch14)
sketch14.AttachmentSupport = (doc.XZ_Plane, [""])
sketch14.MapMode = "FlatFace"
sketch14.AttachmentOffset = App.Placement(V(0, 0, -5), App.Rotation())
sketch14.addGeometry(Part.Circle(V(145.2, 89.2, 0), V(0, 0, 1), 1.2), False)
sketch14.addConstraint([
    Sketcher.Constraint("Diameter", 0, 2.4),
    Sketcher.Constraint("DistanceY", -1, 1, 0, 3, 89.2),
    Sketcher.Constraint("DistanceX", -1, 1, 0, 3, 145.213003),
])
sketch14.setExpression("Constraints[0]", "Params.sketch14_diameter")
pad8 = doc.addObject("PartDesign::Pad", "Pad007")
body.addObject(pad8)
pad8.Profile = sketch14
pad8.setExpression("Length", "Params.pad8_length")
pad8.Reversed = True

# Sketch on XZ plane
sketch15 = doc.addObject("Sketcher::SketchObject", "Sketch014")
body.addObject(sketch15)
sketch15.AttachmentSupport = (doc.XZ_Plane, [""])
sketch15.MapMode = "FlatFace"
sketch15.AttachmentOffset = App.Placement(V(0, 0, -5), App.Rotation())
sketch15.addGeometry(Part.Circle(V(11.5, 60.5, 0), V(0, 0, 1), 1.2), False)
sketch15.addConstraint([
    Sketcher.Constraint("Diameter", 0, 2.4),
    Sketcher.Constraint("DistanceY", -1, 1, 0, 3, 60.5),
    Sketcher.Constraint("DistanceX", -1, 1, 0, 3, 11.513003),
])
sketch15.setExpression("Constraints[0]", "Params.sketch15_diameter")
pad9 = doc.addObject("PartDesign::Pad", "Pad008")
body.addObject(pad9)
pad9.Profile = sketch15
pad9.setExpression("Length", "Params.pad9_length")
pad9.Reversed = True

# Sketch on XZ plane
sketch16 = doc.addObject("Sketcher::SketchObject", "Sketch015")
body.addObject(sketch16)
sketch16.AttachmentSupport = (doc.XZ_Plane, [""])
sketch16.MapMode = "FlatFace"
sketch16.AttachmentOffset = App.Placement(V(0, 0, -5), App.Rotation())
sketch16.addGeometry(Part.Circle(V(69.5, 60.5, 0), V(0, 0, 1), 1.2), False)
sketch16.addConstraint([
    Sketcher.Constraint("Diameter", 0, 2.4),
    Sketcher.Constraint("DistanceY", -1, 1, 0, 3, 60.5),
    Sketcher.Constraint("DistanceX", -1, 1, 0, 3, 69.513003),
])
sketch16.setExpression("Constraints[0]", "Params.sketch16_diameter")
pad10 = doc.addObject("PartDesign::Pad", "Pad009")
body.addObject(pad10)
pad10.Profile = sketch16
pad10.setExpression("Length", "Params.pad10_length")
pad10.Reversed = True

# Sketch on XY plane
sketch17 = doc.addObject("Sketcher::SketchObject", "Sketch016")
body.addObject(sketch17)
sketch17.AttachmentSupport = (doc.XY_Plane, [""])
sketch17.MapMode = "FlatFace"
add_polygon(sketch17, [(-17.5, -10.3), (-15.5, -12.3), (-17.5, -12.3)])  # lines 0-2
sketch17.addConstraint([
    Sketcher.Constraint("Horizontal", 1),
    Sketcher.Constraint("Vertical", 2),
    Sketcher.Constraint("Equal", 1, 2),
    Sketcher.Constraint("DistanceX", 1, 2, 1, 1, 2.0),
    Sketcher.Constraint("DistanceX", 0, 2, -1, 1, 15.5),
    Sketcher.Constraint("DistanceY", 0, 2, -1, 1, 12.340429),
])
sketch17.setExpression("Constraints[6]", "Params.sketch17_width")
pocket7 = doc.addObject("PartDesign::Pocket", "Pocket006")
body.addObject(pocket7)
pocket7.Profile = sketch17
pocket7.Type = "ThroughAll"
pocket7.Reversed = True

# Sketch on XZ plane
sketch18 = doc.addObject("Sketcher::SketchObject", "Sketch017")
body.addObject(sketch18)
sketch18.AttachmentSupport = (doc.XZ_Plane, [""])
sketch18.MapMode = "FlatFace"
sketch18.AttachmentOffset = App.Placement(V(0, 0, -2), App.Rotation())
sketch18.addGeometry(Part.Circle(V(181, 78, 0), V(0, 0, 1), 13), False)
sketch18.addConstraint([
    Sketcher.Constraint("Diameter", 0, 26.0),
    Sketcher.Constraint("DistanceX", -1, 1, 0, 3, 181.0),
    Sketcher.Constraint("DistanceY", -1, 1, 0, 3, 77.85),
])
sketch18.setExpression("Constraints[0]", "Params.sketch18_diameter")
pocket8 = doc.addObject("PartDesign::Pocket", "Pocket007")
body.addObject(pocket8)
pocket8.Profile = sketch18
pocket8.setExpression("Length", "Params.pocket8_length")

# Sketch on XZ plane
sketch19 = doc.addObject("Sketcher::SketchObject", "Sketch018")
body.addObject(sketch19)
sketch19.AttachmentSupport = (doc.XZ_Plane, [""])
sketch19.MapMode = "FlatFace"
sketch19.AttachmentOffset = App.Placement(V(0, 0, -2), App.Rotation())
add_polygon(sketch19, [(79.8, 0), (79.8, 155.5), (80.8, 155.5), (80.8, 0)])  # lines 0-3
sketch19.addConstraint([
    Sketcher.Constraint("Vertical", 0),
    Sketcher.Constraint("Horizontal", 1),
    Sketcher.Constraint("Vertical", 2),
    Sketcher.Constraint("Horizontal", 3),
    Sketcher.Constraint("PointOnObject", 2, 2, -1),
    Sketcher.Constraint("DistanceX", 1, 1, 1, 2, 1.0),
    Sketcher.Constraint("DistanceY", 0, 1, 0, 2, 155.5),
    Sketcher.Constraint("DistanceX", -1, 1, 0, 2, 79.753128),
])
sketch19.setExpression("Constraints[9]", "Params.sketch19_width")
sketch19.setExpression("Constraints[10]", "Params.sketch19_height")
pocket9 = doc.addObject("PartDesign::Pocket", "Pocket008")
body.addObject(pocket9)
pocket9.Profile = sketch19
pocket9.setExpression("Length", "Params.pocket9_length")
pocket9.Reversed = True

# Sketch on XZ plane
sketch20 = doc.addObject("Sketcher::SketchObject", "Sketch019")
body.addObject(sketch20)
sketch20.AttachmentSupport = (doc.XZ_Plane, [""])
sketch20.MapMode = "FlatFace"
sketch20.AttachmentOffset = App.Placement(V(0, 0, -2), App.Rotation())
sketch20.addGeometry([
    Part.Circle(V(130, 11.5, 0), V(0, 0, 1), 2.5),
    Part.Circle(V(130, 11.5, 0), V(0, 0, 1), 1.5),
], False)
sketch20.addConstraint([
    Sketcher.Constraint("Coincident", 1, 3, 0, 3),
    Sketcher.Constraint("Diameter", 0, 5.0),
    Sketcher.Constraint("Diameter", 1, 3.0),
    Sketcher.Constraint("DistanceY", -1, 1, 0, 3, 11.5),
    Sketcher.Constraint("DistanceX", -1, 1, 0, 3, 130.013003),
])
sketch20.setExpression("Constraints[1]", "Params.sketch20_diameter")
sketch20.setExpression("Constraints[2]", "Params.sketch20_diameter2")
pad11 = doc.addObject("PartDesign::Pad", "Pad010")
body.addObject(pad11)
pad11.Profile = sketch20
pad11.setExpression("Length", "Params.pad11_length")
pad11.Reversed = True

# Sketch on XZ plane
sketch21 = doc.addObject("Sketcher::SketchObject", "Sketch020")
body.addObject(sketch21)
sketch21.AttachmentSupport = (doc.XZ_Plane, [""])
sketch21.MapMode = "FlatFace"
sketch21.addGeometry(Part.Circle(V(130, 11.5, 0), V(0, 0, 1), 1.5), False)
sketch21.addConstraint([
    Sketcher.Constraint("Diameter", 0, 3.0),
    Sketcher.Constraint("DistanceY", -1, 1, 0, 3, 11.5),
    Sketcher.Constraint("DistanceX", -1, 1, 0, 3, 130.013003),
])
sketch21.setExpression("Constraints[0]", "Params.sketch21_diameter")
pocket10 = doc.addObject("PartDesign::Pocket", "Pocket009")
body.addObject(pocket10)
pocket10.Profile = sketch21
pocket10.setExpression("Length", "Params.pocket10_length")

doc.recompute()
